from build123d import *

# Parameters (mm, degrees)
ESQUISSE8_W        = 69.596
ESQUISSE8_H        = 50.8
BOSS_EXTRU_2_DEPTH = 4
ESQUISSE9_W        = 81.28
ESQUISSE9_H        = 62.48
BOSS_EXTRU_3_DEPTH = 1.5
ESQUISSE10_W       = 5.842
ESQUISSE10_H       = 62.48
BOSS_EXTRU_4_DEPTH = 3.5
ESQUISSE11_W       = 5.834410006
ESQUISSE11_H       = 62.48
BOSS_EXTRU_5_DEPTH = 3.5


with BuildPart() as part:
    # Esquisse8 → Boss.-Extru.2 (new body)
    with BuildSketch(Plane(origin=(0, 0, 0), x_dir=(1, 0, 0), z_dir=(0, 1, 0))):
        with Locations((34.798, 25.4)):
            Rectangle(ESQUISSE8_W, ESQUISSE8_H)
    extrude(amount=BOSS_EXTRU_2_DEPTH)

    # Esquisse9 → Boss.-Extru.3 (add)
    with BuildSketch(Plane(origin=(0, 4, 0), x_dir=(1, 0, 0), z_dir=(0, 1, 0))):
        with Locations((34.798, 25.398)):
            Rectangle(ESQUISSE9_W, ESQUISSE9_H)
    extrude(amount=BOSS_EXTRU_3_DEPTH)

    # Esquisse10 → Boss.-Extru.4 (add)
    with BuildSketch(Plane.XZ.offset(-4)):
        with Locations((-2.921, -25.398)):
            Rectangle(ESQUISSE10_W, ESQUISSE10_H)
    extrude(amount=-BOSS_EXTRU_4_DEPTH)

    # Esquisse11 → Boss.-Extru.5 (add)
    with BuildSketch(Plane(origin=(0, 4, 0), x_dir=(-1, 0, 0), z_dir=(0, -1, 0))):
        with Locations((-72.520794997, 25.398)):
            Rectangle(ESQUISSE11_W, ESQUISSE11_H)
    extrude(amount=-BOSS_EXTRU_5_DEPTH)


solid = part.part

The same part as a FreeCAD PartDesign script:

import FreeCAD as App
import Part
import Sketcher
from FreeCAD import Vector
Q = App.Units.Quantity


def add_polygon(sketch, points):
    """Adds a closed chain of lines whose ends are joined by coincident constraints."""
    first, n = sketch.GeometryCount, len(points)
    for a, b in zip(points, points[1:] + points[:1]):
        sketch.addGeometry(Part.LineSegment(App.Vector(*a, 0), App.Vector(*b, 0)), False)
    for i in range(n):
        sketch.addConstraint(Sketcher.Constraint("Coincident", first + i, 2, first + (i + 1) % n, 1))

doc = App.newDocument("Part")
body = doc.addObject("PartDesign::Body", "Body")

sketch1 = body.newObject("Sketcher::SketchObject", "Sketch")
sketch1.AttachmentSupport = (doc.getObject("XZ_Plane"), [""])
sketch1.MapMode = "FlatFace"
add_polygon(sketch1, [(0, -51), (0, 0), (70, 0), (70, -51)])
sketch1.addConstraint(Sketcher.Constraint("Vertical", 0))
sketch1.addConstraint(Sketcher.Constraint("Horizontal", 1))
sketch1.addConstraint(Sketcher.Constraint("Vertical", 2))
sketch1.addConstraint(Sketcher.Constraint("Horizontal", 3))
sketch1.addConstraint(Sketcher.Constraint("Coincident", 0, 2, -1, 1))
sketch1.addConstraint(Sketcher.Constraint("DistanceY", 0, 1, 0, 2, Q("2 in")))
sketch1.addConstraint(Sketcher.Constraint("DistanceX", 1, 1, 1, 2, Q("2.74 in")))
pad1 = body.newObject("PartDesign::Pad", "Pad")
pad1.Profile = sketch1
pad1.Length = 4
pad1.Reversed = True

sketch2 = body.newObject("Sketcher::SketchObject", "Sketch001")
sketch2.AttachmentSupport = (doc.getObject("XZ_Plane"), [""])
sketch2.MapMode = "FlatFace"
sketch2.AttachmentOffset = App.Placement(Vector(0, 0, -4), App.Rotation())
add_polygon(sketch2, [(-6, -57), (-6, 6), (75, 6), (75, -57)])
sketch2.addConstraint(Sketcher.Constraint("Vertical", 0))
sketch2.addConstraint(Sketcher.Constraint("Horizontal", 1))
sketch2.addConstraint(Sketcher.Constraint("Vertical", 2))
sketch2.addConstraint(Sketcher.Constraint("Horizontal", 3))
sketch2.addConstraint(Sketcher.Constraint("DistanceX", 1, 1, 1, 2, Q("3.2 in")))
sketch2.addConstraint(Sketcher.Constraint("DistanceX", 0, 2, -1, 1, Q("0.23 in")))
sketch2.addConstraint(Sketcher.Constraint("DistanceY", -1, 1, 0, 2, Q("0.23 in")))
sketch2.addConstraint(Sketcher.Constraint("DistanceY", 0, 1, 0, 2, 62.48))
pad2 = body.newObject("PartDesign::Pad", "Pad001")
pad2.Profile = sketch2
pad2.Length = 1.5
pad2.Reversed = True

sketch3 = body.newObject("Sketcher::SketchObject", "Sketch002")
sketch3.AttachmentSupport = (doc.getObject("XZ_Plane"), [""])
sketch3.MapMode = "FlatFace"
sketch3.AttachmentOffset = App.Placement(Vector(0, 0, -4), App.Rotation())
add_polygon(sketch3, [(-6, 6), (-6, -57), (0, -57), (0, 6)])
sketch3.addConstraint(Sketcher.Constraint("Vertical", 0))
sketch3.addConstraint(Sketcher.Constraint("Horizontal", 1))
sketch3.addConstraint(Sketcher.Constraint("Vertical", 2))
sketch3.addConstraint(Sketcher.Constraint("Horizontal", 3))
sketch3.addConstraint(Sketcher.Constraint("PointOnObject", 1, 2, -2))
sketch3.addConstraint(Sketcher.Constraint("DistanceX", 1, 1, 1, 2, Q("0.23 in")))
sketch3.addConstraint(Sketcher.Constraint("DistanceY", -1, 1, 2, 2, Q("0.23 in")))
sketch3.addConstraint(Sketcher.Constraint("DistanceY", 0, 2, 0, 1, 62.48))
pad3 = body.newObject("PartDesign::Pad", "Pad002")
pad3.Profile = sketch3
pad3.Length = 3.5
pad3.Reversed = True

sketch4 = body.newObject("Sketcher::SketchObject", "Sketch003")
sketch4.AttachmentSupport = (doc.getObject("XZ_Plane"), [""])
sketch4.MapMode = "FlatFace"
sketch4.AttachmentOffset = App.Placement(Vector(0, 0, -4), App.Rotation())
add_polygon(sketch4, [(75, -57), (75, 6), (70, 6), (70, -57)])
sketch4.addConstraint(Sketcher.Constraint("Vertical", 0))
sketch4.addConstraint(Sketcher.Constraint("Horizontal", 1))
sketch4.addConstraint(Sketcher.Constraint("Vertical", 2))
sketch4.addConstraint(Sketcher.Constraint("Horizontal", 3))
sketch4.addConstraint(Sketcher.Constraint("DistanceX", -1, 1, 0, 2, Q("2.97 in")))
sketch4.addConstraint(Sketcher.Constraint("DistanceY", -1, 1, 0, 2, Q("0.23 in")))
sketch4.addConstraint(Sketcher.Constraint("DistanceY", 0, 1, 0, 2, 62.48))
sketch4.addConstraint(Sketcher.Constraint("DistanceX", 1, 2, 1, 1, 5.83441))
pad4 = body.newObject("PartDesign::Pad", "Pad003")
pad4.Profile = sketch4
pad4.Length = 3.5
pad4.Reversed = True

doc.recompute()
